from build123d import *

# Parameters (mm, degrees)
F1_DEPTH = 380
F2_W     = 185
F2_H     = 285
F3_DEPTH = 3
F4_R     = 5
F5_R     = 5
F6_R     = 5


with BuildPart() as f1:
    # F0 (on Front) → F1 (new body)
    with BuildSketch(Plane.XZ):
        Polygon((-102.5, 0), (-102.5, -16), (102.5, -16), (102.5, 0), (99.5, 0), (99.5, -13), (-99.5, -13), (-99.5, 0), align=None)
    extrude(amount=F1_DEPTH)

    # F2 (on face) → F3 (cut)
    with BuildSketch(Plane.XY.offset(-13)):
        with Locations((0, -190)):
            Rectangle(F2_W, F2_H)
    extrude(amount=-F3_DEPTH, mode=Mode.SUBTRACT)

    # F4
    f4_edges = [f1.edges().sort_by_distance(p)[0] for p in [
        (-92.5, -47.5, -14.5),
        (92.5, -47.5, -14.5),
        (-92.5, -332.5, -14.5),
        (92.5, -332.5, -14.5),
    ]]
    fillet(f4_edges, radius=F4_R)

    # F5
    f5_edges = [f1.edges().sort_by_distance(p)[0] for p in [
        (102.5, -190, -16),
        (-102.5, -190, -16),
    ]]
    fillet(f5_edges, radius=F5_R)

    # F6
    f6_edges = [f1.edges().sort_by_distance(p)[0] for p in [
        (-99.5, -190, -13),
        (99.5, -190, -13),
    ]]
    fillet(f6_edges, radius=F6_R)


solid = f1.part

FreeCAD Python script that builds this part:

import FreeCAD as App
import Part
import Sketcher
Q = App.Units.Quantity


def edges_at(feature, points):
    """Names of the edges that pass closest to the given points."""
    edges = feature.Shape.Edges
    near = lambda p: min(range(len(edges)), key=lambda i: edges[i].distToShape(Part.Vertex(*p))[0])
    return sorted({f"Edge{near(p) + 1}" for p in points})


def add_polygon(sketch, points):
    """Adds a closed chain of lines whose ends are joined by coincident constraints."""
    first, n = sketch.GeometryCount, len(points)
    for a, b in zip(points, points[1:] + points[:1]):
        sketch.addGeometry(Part.LineSegment(App.Vector(*a, 0), App.Vector(*b, 0)), False)
    for i in range(n):
        sketch.addConstraint(Sketcher.Constraint("Coincident", first + i, 2, first + (i + 1) % n, 1))

doc = App.newDocument("Part")
params = doc.addObject("Spreadsheet::Sheet", "Params")
for row, (alias, value) in enumerate([
    ("sketch1_width", "205 mm"),
    ("sketch1_width2", "3 mm"),
    ("sketch1_height", "16 mm"),
    ("sketch1_height2", "13 mm"),
    ("pad1_length", "380 mm"),
    ("sketch2_width", "185 mm"),
    ("sketch2_height", "285 mm"),
    ("pocket1_length", "3 mm"),
    ("fillet_radius", "5 mm"),
    ("fillet2_radius", "5 mm"),
    ("fillet3_radius", "5 mm"),
], start=1):
    params.set(f"A{row}", alias)
    params.set(f"B{row}", "=" + value)
    params.setAlias(f"B{row}", alias)

body = doc.addObject("PartDesign::Body", "Body")

# Sketch on XZ plane
sketch1 = body.newObject("Sketcher::SketchObject", "Sketch")
sketch1.AttachmentSupport = (doc.getObject("XZ_Plane"), [""])
sketch1.MapMode = "FlatFace"
add_polygon(sketch1, [(-102.5, 0), (-102.5, -16), (102.5, -16), (102.5, 0), (99.5, 0), (99.5, -13), (-99.5, -13), (-99.5, 0)])  # lines 0-7
sketch1.addConstraint(Sketcher.Constraint("Vertical", 0))
sketch1.addConstraint(Sketcher.Constraint("Horizontal", 1))
sketch1.addConstraint(Sketcher.Constraint("Vertical", 2))
sketch1.addConstraint(Sketcher.Constraint("Horizontal", 3))
sketch1.addConstraint(Sketcher.Constraint("Vertical", 4))
sketch1.addConstraint(Sketcher.Constraint("Horizontal", 5))
sketch1.addConstraint(Sketcher.Constraint("Vertical", 6))
sketch1.addConstraint(Sketcher.Constraint("Horizontal", 7))
sketch1.addConstraint(Sketcher.Constraint("Symmetric", 3, 2, 6, 2, -1, 1))
sketch1.addConstraint(Sketcher.Constraint("Symmetric", 2, 2, 7, 2, -2))
sketch1.addConstraint(Sketcher.Constraint("DistanceX", 1, 1, 1, 2, Q("205 mm")))
sketch1.addConstraint(Sketcher.Constraint("DistanceX", 3, 2, 3, 1, Q("3 mm")))
sketch1.addConstraint(Sketcher.Constraint("DistanceY", 0, 2, 0, 1, Q("16 mm")))
sketch1.addConstraint(Sketcher.Constraint("DistanceY", 4, 2, 4, 1, Q("13 mm")))
sketch1.setExpression("Constraints[18]", "Params.sketch1_width")
sketch1.setExpression("Constraints[19]", "Params.sketch1_width2")
sketch1.setExpression("Constraints[20]", "Params.sketch1_height")
sketch1.setExpression("Constraints[21]", "Params.sketch1_height2")
pad1 = body.newObject("PartDesign::Pad", "Pad")
pad1.Profile = sketch1
pad1.setExpression("Length", "Params.pad1_length")

# Sketch on XY plane
sketch2 = body.newObject("Sketcher::SketchObject", "Sketch001")
sketch2.AttachmentSupport = (doc.getObject("XY_Plane"), [""])
sketch2.MapMode = "FlatFace"
sketch2.AttachmentOffset = App.Placement(App.Vector(0, 0, -13), App.Rotation())
add_polygon(sketch2, [(-92, -48), (-92, -332), (92, -332), (92, -48)])  # lines 0-3
sketch2.addConstraint(Sketcher.Constraint("Vertical", 0))
sketch2.addConstraint(Sketcher.Constraint("Horizontal", 1))
sketch2.addConstraint(Sketcher.Constraint("Vertical", 2))
sketch2.addConstraint(Sketcher.Constraint("Horizontal", 3))
sketch2.addConstraint(Sketcher.Constraint("DistanceX", 1, 1, 1, 2, Q("185 mm")))
sketch2.addConstraint(Sketcher.Constraint("DistanceY", 0, 2, 0, 1, Q("285 mm")))
sketch2.addConstraint(Sketcher.Constraint("DistanceX", 0, 2, -1, 1, Q("92.5 mm")))
sketch2.addConstraint(Sketcher.Constraint("DistanceY", 0, 2, -1, 1, Q("332.5 mm")))
sketch2.setExpression("Constraints[8]", "Params.sketch2_width")
sketch2.setExpression("Constraints[9]", "Params.sketch2_height")
pocket1 = body.newObject("PartDesign::Pocket", "Pocket")
pocket1.Profile = sketch2
pocket1.setExpression("Length", "Params.pocket1_length")
doc.recompute()

fillet = body.newObject("PartDesign::Fillet", "Fillet")
fillet.Base = (pocket1, edges_at(pocket1, [
    (-92.5, -47.5, -14.5),
    (92.5, -47.5, -14.5),
    (-92.5, -332.5, -14.5),
    (92.5, -332.5, -14.5),
]))
fillet.setExpression("Radius", "Params.fillet_radius")
doc.recompute()

fillet2 = body.newObject("PartDesign::Fillet", "Fillet001")
fillet2.Base = (fillet, edges_at(fillet, [(102.5, -190, -16), (-102.5, -190, -16)]))
fillet2.setExpression("Radius", "Params.fillet2_radius")
doc.recompute()

fillet3 = body.newObject("PartDesign::Fillet", "Fillet002")
fillet3.Base = (fillet2, edges_at(fillet2, [(-99.5, -190, -13), (99.5, -190, -13)]))
fillet3.setExpression("Radius", "Params.fillet3_radius")

doc.recompute()
